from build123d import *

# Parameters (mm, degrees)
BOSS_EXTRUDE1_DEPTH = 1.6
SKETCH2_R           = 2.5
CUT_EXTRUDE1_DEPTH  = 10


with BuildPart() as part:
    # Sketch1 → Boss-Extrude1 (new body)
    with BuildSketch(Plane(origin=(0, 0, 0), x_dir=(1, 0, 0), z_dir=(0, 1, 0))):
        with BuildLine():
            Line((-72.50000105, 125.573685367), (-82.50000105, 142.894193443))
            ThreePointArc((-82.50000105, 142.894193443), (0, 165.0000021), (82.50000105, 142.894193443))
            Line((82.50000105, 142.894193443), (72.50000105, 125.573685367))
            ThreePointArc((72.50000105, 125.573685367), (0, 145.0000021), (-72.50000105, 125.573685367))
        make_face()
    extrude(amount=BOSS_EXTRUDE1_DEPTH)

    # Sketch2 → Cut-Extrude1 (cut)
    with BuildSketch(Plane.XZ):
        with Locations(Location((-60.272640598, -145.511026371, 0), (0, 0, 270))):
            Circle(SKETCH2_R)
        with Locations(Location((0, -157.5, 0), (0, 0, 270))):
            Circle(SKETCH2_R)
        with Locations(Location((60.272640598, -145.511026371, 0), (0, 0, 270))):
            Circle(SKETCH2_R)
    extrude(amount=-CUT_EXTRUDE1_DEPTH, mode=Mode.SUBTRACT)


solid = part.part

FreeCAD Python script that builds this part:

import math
import FreeCAD as App
import Part
import Sketcher

V = App.Vector
Q = App.Units.Quantity

doc = App.newDocument("Part")
body = doc.addObject("PartDesign::Body", "Body")

sketch1 = body.newObject("Sketcher::SketchObject", "Sketch")
sketch1.AttachmentSupport = (doc.getObject("XZ_Plane"), [""])
sketch1.MapMode = "FlatFace"
sketch1.addGeometry(Part.LineSegment(V(-83, -143, 0), V(-73, -126, 0)), False)
sketch1.addGeometry(Part.ArcOfCircle(Part.Circle(V(0, 0, 0), V(0, 0, 1), 145), math.radians(-120), math.radians(-60)), False)
sketch1.addGeometry(Part.LineSegment(V(73, -126, 0), V(83, -143, 0)), False)
sketch1.addGeometry(Part.ArcOfCircle(Part.Circle(V(0, 0, 0), V(0, 0, 1), 165), math.radians(-120), math.radians(-60)), False)
sketch1.addConstraint(Sketcher.Constraint("Coincident", 0, 2, 1, 1))
sketch1.addConstraint(Sketcher.Constraint("Coincident", 1, 2, 2, 1))
sketch1.addConstraint(Sketcher.Constraint("Coincident", 2, 2, 3, 2))
sketch1.addConstraint(Sketcher.Constraint("Coincident", 3, 1, 0, 1))
sketch1.addConstraint(Sketcher.Constraint("Coincident", 1, 3, -1, 1))
sketch1.addConstraint(Sketcher.Constraint("Coincident", 3, 3, -1, 1))
sketch1.addConstraint(Sketcher.Constraint("Horizontal", 0, 2, 1, 2))
sketch1.addConstraint(Sketcher.Constraint("Horizontal", 2, 2, 3, 1))
sketch1.addConstraint(Sketcher.Constraint("Angle", 0, Q("60 deg")))
sketch1.addConstraint(Sketcher.Constraint("Distance", 0, Q("20 mm")))
sketch1.addConstraint(Sketcher.Constraint("DistanceX", 0, 2, -1, 1, Q("72.500001 mm")))
sketch1.addConstraint(Sketcher.Constraint("Radius", 1, Q("145.000002 mm")))
pad1 = body.newObject("PartDesign::Pad", "Pad")
pad1.Profile = sketch1
pad1.Length = 1.6
pad1.Reversed = True

sketch2 = body.newObject("Sketcher::SketchObject", "Sketch001")
sketch2.AttachmentSupport = (doc.getObject("XZ_Plane"), [""])
sketch2.MapMode = "FlatFace"
sketch2.addGeometry(Part.Circle(V(-60.3, -145.5, 0), V(0, 0, 1), 2.5), False)
sketch2.addGeometry(Part.Circle(V(0, -157.5, 0), V(0, 0, 1), 2.5), False)
sketch2.addGeometry(Part.Circle(V(60.3, -145.5, 0), V(0, 0, 1), 2.5), False)
sketch2.addConstraint(Sketcher.Constraint("Equal", 0, 1))
sketch2.addConstraint(Sketcher.Constraint("Equal", 1, 2))
sketch2.addConstraint(Sketcher.Constraint("Symmetric", 0, 3, 2, 3, -2))
sketch2.addConstraint(Sketcher.Constraint("PointOnObject", 1, 3, -2))
sketch2.addConstraint(Sketcher.Constraint("Diameter", 0, Q("5 mm")))
sketch2.addConstraint(Sketcher.Constraint("DistanceY", 1, 3, -1, 1, Q("157.5 mm")))
sketch2.addConstraint(Sketcher.Constraint("DistanceX", 0, 3, -1, 1, Q("60.272641 mm")))
sketch2.addConstraint(Sketcher.Constraint("DistanceY", 0, 3, -1, 1, Q("145.511026 mm")))
pocket1 = body.newObject("PartDesign::Pocket", "Pocket")
pocket1.Profile = sketch2
pocket1.Length = 10

doc.recompute()
